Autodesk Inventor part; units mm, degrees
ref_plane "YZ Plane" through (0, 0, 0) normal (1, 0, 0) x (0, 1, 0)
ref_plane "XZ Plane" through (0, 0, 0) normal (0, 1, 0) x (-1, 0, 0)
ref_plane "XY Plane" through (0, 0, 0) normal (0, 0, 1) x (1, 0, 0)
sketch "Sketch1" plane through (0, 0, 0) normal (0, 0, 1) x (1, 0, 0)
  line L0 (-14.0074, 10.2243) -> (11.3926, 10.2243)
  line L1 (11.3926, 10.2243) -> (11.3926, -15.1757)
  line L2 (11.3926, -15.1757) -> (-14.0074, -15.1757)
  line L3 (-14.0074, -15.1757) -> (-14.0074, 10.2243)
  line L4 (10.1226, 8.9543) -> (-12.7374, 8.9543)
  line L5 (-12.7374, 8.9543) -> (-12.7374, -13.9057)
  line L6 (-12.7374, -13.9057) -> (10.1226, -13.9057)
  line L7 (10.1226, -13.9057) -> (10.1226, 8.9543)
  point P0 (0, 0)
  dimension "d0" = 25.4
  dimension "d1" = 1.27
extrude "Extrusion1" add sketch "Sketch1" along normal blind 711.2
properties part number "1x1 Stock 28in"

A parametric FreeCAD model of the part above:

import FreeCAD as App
import Part
import Sketcher
from FreeCAD import Vector
Q = App.Units.Quantity


def add_polygon(sketch, points):
    """Adds a closed chain of lines whose ends are joined by coincident constraints."""
    first, n = sketch.GeometryCount, len(points)
    for a, b in zip(points, points[1:] + points[:1]):
        sketch.addGeometry(Part.LineSegment(App.Vector(*a, 0), App.Vector(*b, 0)), False)
    for i in range(n):
        sketch.addConstraint(Sketcher.Constraint("Coincident", first + i, 2, first + (i + 1) % n, 1))

doc = App.newDocument("Part")
params = doc.addObject("Spreadsheet::Sheet", "Params")
for row, (alias, value) in enumerate([
    ("sketch1_width", "1 in"),
    ("pad1_length", "28 in"),
], start=1):
    params.set(f"A{row}", alias)
    params.set(f"B{row}", "=" + value)
    params.setAlias(f"B{row}", alias)

body = doc.addObject("PartDesign::Body", "Body")

sketch1 = body.newObject("Sketcher::SketchObject", "Sketch")
sketch1.AttachmentSupport = (doc.getObject("XY_Plane"), [""])
sketch1.MapMode = "FlatFace"
add_polygon(sketch1, [(11, 10), (-14, 10), (-14, -15), (11, -15)])
add_polygon(sketch1, [(-13, 9), (10, 9), (10, -14), (-13, -14)])
sketch1.addConstraint([
    Sketcher.Constraint("Horizontal", 0),
    Sketcher.Constraint("Vertical", 1),
    Sketcher.Constraint("Horizontal", 2),
    Sketcher.Constraint("Vertical", 3),
    Sketcher.Constraint("Horizontal", 4),
    Sketcher.Constraint("Vertical", 5),
    Sketcher.Constraint("Horizontal", 6),
    Sketcher.Constraint("Vertical", 7),
    Sketcher.Constraint("Equal", 2, 1),
    Sketcher.Constraint("Equal", 6, 5),
    Sketcher.Constraint("DistanceX", 0, 2, 0, 1, Q("1 in")),
    Sketcher.Constraint("DistanceX", 4, 2, 3, 2, Q("0.05 in")),
    Sketcher.Constraint("DistanceY", 4, 2, 3, 2, Q("0.05 in")),
    Sketcher.Constraint("DistanceY", 2, 2, 5, 2, Q("0.05 in")),
    Sketcher.Constraint("DistanceX", 0, 2, -1, 1, 14.0074),
    Sketcher.Constraint("DistanceY", -1, 1, 0, 2, 10.2243),
])
sketch1.setExpression("Constraints[18]", "Params.sketch1_width")
pad1 = body.newObject("PartDesign::Pad", "Pad")
pad1.Profile = sketch1
pad1.setExpression("Length", "Params.pad1_length")

doc.recompute()
